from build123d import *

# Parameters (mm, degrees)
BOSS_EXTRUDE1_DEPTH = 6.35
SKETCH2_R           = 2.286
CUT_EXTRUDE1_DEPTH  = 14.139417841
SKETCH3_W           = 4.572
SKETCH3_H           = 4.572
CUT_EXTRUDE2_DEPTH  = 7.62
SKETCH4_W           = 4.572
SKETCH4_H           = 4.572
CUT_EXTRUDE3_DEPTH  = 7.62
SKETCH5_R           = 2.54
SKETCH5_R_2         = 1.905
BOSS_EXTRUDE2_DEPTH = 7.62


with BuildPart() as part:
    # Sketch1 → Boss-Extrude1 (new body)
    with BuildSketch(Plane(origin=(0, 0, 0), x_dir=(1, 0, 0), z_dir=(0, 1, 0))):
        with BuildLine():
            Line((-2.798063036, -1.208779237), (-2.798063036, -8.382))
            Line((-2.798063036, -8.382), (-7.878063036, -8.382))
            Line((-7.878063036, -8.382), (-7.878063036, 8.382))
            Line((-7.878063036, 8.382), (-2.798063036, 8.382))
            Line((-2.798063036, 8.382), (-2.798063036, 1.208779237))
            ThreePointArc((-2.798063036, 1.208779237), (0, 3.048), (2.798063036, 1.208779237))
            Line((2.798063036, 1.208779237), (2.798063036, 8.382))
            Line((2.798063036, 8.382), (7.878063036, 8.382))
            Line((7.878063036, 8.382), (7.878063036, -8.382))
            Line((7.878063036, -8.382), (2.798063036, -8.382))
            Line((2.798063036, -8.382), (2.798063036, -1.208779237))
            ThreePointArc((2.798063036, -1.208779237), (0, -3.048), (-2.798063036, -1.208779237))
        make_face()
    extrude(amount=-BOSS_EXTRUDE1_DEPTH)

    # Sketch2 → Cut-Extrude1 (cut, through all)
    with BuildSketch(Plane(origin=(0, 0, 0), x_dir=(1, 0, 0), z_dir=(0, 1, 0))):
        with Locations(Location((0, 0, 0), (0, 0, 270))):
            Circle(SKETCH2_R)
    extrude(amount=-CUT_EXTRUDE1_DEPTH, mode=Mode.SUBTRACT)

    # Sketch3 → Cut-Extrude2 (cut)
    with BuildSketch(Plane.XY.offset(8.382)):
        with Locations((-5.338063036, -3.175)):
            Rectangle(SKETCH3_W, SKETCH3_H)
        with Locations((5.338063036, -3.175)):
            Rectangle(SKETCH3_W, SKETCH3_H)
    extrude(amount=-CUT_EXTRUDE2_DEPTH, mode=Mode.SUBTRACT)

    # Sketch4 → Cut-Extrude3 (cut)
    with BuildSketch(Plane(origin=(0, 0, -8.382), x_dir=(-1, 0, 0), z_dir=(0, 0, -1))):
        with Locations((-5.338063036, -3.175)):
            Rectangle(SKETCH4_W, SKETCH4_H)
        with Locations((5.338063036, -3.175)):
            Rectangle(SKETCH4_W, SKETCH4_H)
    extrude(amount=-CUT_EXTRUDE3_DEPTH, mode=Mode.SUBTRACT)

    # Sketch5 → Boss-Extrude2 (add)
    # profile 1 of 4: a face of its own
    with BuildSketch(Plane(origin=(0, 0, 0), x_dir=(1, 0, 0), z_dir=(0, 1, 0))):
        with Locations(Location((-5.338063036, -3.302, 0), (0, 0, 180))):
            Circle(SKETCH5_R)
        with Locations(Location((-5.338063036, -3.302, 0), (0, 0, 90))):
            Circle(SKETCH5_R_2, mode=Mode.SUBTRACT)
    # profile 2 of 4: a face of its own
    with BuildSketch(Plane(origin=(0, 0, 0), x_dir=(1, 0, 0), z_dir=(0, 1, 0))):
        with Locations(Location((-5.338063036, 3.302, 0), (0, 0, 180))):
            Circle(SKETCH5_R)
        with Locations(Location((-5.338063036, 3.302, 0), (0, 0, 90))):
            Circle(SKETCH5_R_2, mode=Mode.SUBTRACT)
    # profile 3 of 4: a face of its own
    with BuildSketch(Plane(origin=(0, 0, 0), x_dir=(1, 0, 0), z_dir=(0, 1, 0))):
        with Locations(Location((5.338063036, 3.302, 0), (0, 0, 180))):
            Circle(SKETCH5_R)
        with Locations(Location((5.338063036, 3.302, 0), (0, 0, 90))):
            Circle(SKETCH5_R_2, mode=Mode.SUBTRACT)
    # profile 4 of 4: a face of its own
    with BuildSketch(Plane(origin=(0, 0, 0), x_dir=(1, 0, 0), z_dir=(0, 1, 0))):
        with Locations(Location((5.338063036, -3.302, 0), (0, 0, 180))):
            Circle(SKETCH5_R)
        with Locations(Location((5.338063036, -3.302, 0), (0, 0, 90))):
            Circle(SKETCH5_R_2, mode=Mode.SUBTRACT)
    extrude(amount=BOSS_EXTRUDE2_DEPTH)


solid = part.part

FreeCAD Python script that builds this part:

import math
import FreeCAD as App
import Part
import Sketcher

V = App.Vector
Q = App.Units.Quantity

doc = App.newDocument("Part")
params = doc.addObject("Spreadsheet::Sheet", "Params")
for row, (alias, value) in enumerate([
    ("sketch1_radius", "0.12 in"),
    ("sketch1_width", "0.2 in"),
    ("sketch1_height", "0.66 in"),
    ("pad1_length", "0.25 in"),
    ("sketch2_diameter", "0.18 in"),
    ("sketch3_width", "0.18 in"),
    ("pocket2_length", "0.3 in"),
    ("sketch4_width", "0.18 in"),
    ("pocket3_length", "0.3 in"),
    ("sketch5_diameter", "0.2 in"),
    ("sketch5_diameter2", "0.15 in"),
    ("pad2_length", "0.3 in"),
], start=1):
    params.set(f"A{row}", alias)
    params.set(f"B{row}", "=" + value)
    params.setAlias(f"B{row}", alias)

body = doc.addObject("PartDesign::Body", "Body")

# Sketch on XZ plane
sketch1 = body.newObject("Sketcher::SketchObject", "Sketch")
sketch1.AttachmentSupport = (doc.getObject("XZ_Plane"), [""])
sketch1.MapMode = "FlatFace"
sketch1.addGeometry(Part.LineSegment(V(-2.798063, 8.382, 0), V(-2.798063, 1.208779, 0)), False)
sketch1.addGeometry(Part.ArcOfCircle(Part.Circle(V(0, 0, 0), V(0, 0, 1), 3.048), math.radians(23.364621), math.radians(156.635379)), False)
sketch1.addGeometry(Part.LineSegment(V(2.798063, 1.208779, 0), V(2.798063, 8.382, 0)), False)
sketch1.addGeometry(Part.LineSegment(V(2.798063, 8.382, 0), V(7.878063, 8.382, 0)), False)
sketch1.addGeometry(Part.LineSegment(V(7.878063, 8.382, 0), V(7.878063, -8.382, 0)), False)
sketch1.addGeometry(Part.LineSegment(V(7.878063, -8.382, 0), V(2.798063, -8.382, 0)), False)
sketch1.addGeometry(Part.LineSegment(V(2.798063, -8.382, 0), V(2.798063, -1.208779, 0)), False)
sketch1.addGeometry(Part.ArcOfCircle(Part.Circle(V(0, 0, 0), V(0, 0, 1), 3.048), math.radians(-156.635379), math.radians(-23.364621)), False)
sketch1.addGeometry(Part.LineSegment(V(-2.798063, -1.208779, 0), V(-2.798063, -8.382, 0)), False)
sketch1.addGeometry(Part.LineSegment(V(-2.798063, -8.382, 0), V(-7.878063, -8.382, 0)), False)
sketch1.addGeometry(Part.LineSegment(V(-7.878063, -8.382, 0), V(-7.878063, 8.382, 0)), False)
sketch1.addGeometry(Part.LineSegment(V(-7.878063, 8.382, 0), V(-2.798063, 8.382, 0)), False)
sketch1.addConstraint(Sketcher.Constraint("Coincident", 0, 2, 1, 2))
sketch1.addConstraint(Sketcher.Constraint("Coincident", 1, 1, 2, 1))
sketch1.addConstraint(Sketcher.Constraint("Coincident", 2, 2, 3, 1))
sketch1.addConstraint(Sketcher.Constraint("Coincident", 3, 2, 4, 1))
sketch1.addConstraint(Sketcher.Constraint("Coincident", 4, 2, 5, 1))
sketch1.addConstraint(Sketcher.Constraint("Coincident", 5, 2, 6, 1))
sketch1.addConstraint(Sketcher.Constraint("Coincident", 6, 2, 7, 2))
sketch1.addConstraint(Sketcher.Constraint("Coincident", 7, 1, 8, 1))
sketch1.addConstraint(Sketcher.Constraint("Coincident", 8, 2, 9, 1))
sketch1.addConstraint(Sketcher.Constraint("Coincident", 9, 2, 10, 1))
sketch1.addConstraint(Sketcher.Constraint("Coincident", 10, 2, 11, 1))
sketch1.addConstraint(Sketcher.Constraint("Coincident", 11, 2, 0, 1))
sketch1.addConstraint(Sketcher.Constraint("Vertical", 0))
sketch1.addConstraint(Sketcher.Constraint("Vertical", 2))
sketch1.addConstraint(Sketcher.Constraint("Horizontal", 3))
sketch1.addConstraint(Sketcher.Constraint("Vertical", 4))
sketch1.addConstraint(Sketcher.Constraint("Horizontal", 5))
sketch1.addConstraint(Sketcher.Constraint("Vertical", 6))
sketch1.addConstraint(Sketcher.Constraint("Vertical", 8))
sketch1.addConstraint(Sketcher.Constraint("Horizontal", 9))
sketch1.addConstraint(Sketcher.Constraint("Vertical", 10))
sketch1.addConstraint(Sketcher.Constraint("Horizontal", 11))
sketch1.addConstraint(Sketcher.Constraint("Coincident", 1, 3, -1, 1))
sketch1.addConstraint(Sketcher.Constraint("Coincident", 7, 3, -1, 1))
sketch1.addConstraint(Sketcher.Constraint("Equal", 1, 7))
sketch1.addConstraint(Sketcher.Constraint("Symmetric", 2, 2, 8, 2, -1, 1))
sketch1.addConstraint(Sketcher.Constraint("Symmetric", 4, 2, 10, 2, -1, 1))
sketch1.addConstraint(Sketcher.Constraint("Symmetric", 5, 2, 8, 2, -2))
sketch1.addConstraint(Sketcher.Constraint("Horizontal", 0, 2, 1, 1))
sketch1.addConstraint(Sketcher.Constraint("Radius", 1, Q("0.12 in")))
sketch1.addConstraint(Sketcher.Constraint("DistanceX", 3, 1, 3, 2, Q("0.2 in")))
sketch1.addConstraint(Sketcher.Constraint("DistanceY", 4, 2, 4, 1, Q("0.66 in")))
sketch1.addConstraint(Sketcher.Constraint("DistanceY", 0, 2, 0, 1, Q("7.173221 mm")))
sketch1.setExpression("Constraints[29]", "Params.sketch1_radius")
sketch1.setExpression("Constraints[30]", "Params.sketch1_width")
sketch1.setExpression("Constraints[31]", "Params.sketch1_height")
pad1 = body.newObject("PartDesign::Pad", "Pad")
pad1.Profile = sketch1
pad1.setExpression("Length", "Params.pad1_length")

# Sketch on XZ plane
sketch2 = body.newObject("Sketcher::SketchObject", "Sketch001")
sketch2.AttachmentSupport = (doc.getObject("XZ_Plane"), [""])
sketch2.MapMode = "FlatFace"
sketch2.addGeometry(Part.Circle(V(0, 0, 0), V(0, 0, 1), 2.286), False)
sketch2.addConstraint(Sketcher.Constraint("Coincident", 0, 3, -1, 1))
sketch2.addConstraint(Sketcher.Constraint("Diameter", 0, Q("0.18 in")))
sketch2.setExpression("Constraints[1]", "Params.sketch2_diameter")
pocket1 = body.newObject("PartDesign::Pocket", "Pocket")
pocket1.Profile = sketch2
pocket1.Type = "ThroughAll"
pocket1.Reversed = True

# Sketch on XY plane
sketch3 = body.newObject("Sketcher::SketchObject", "Sketch002")
sketch3.AttachmentSupport = (doc.getObject("XY_Plane"), [""])
sketch3.MapMode = "FlatFace"
sketch3.AttachmentOffset = App.Placement(V(0, 0, 0.33 * 25.4), App.Rotation())
sketch3.addGeometry(Part.LineSegment(V(-7.624063, -0.889, 0), V(-7.624063, -5.461, 0)), False)
sketch3.addGeometry(Part.LineSegment(V(-7.624063, -5.461, 0), V(-3.052063, -5.461, 0)), False)
sketch3.addGeometry(Part.LineSegment(V(-3.052063, -5.461, 0), V(-3.052063, -0.889, 0)), False)
sketch3.addGeometry(Part.LineSegment(V(-3.052063, -0.889, 0), V(-7.624063, -0.889, 0)), False)
sketch3.addGeometry(Part.LineSegment(V(3.052063, -0.889, 0), V(3.052063, -5.461, 0)), False)
sketch3.addGeometry(Part.LineSegment(V(3.052063, -5.461, 0), V(7.624063, -5.461, 0)), False)
sketch3.addGeometry(Part.LineSegment(V(7.624063, -5.461, 0), V(7.624063, -0.889, 0)), False)
sketch3.addGeometry(Part.LineSegment(V(7.624063, -0.889, 0), V(3.052063, -0.889, 0)), False)
sketch3.addConstraint(Sketcher.Constraint("Coincident", 0, 2, 1, 1))
sketch3.addConstraint(Sketcher.Constraint("Coincident", 1, 2, 2, 1))
sketch3.addConstraint(Sketcher.Constraint("Coincident", 2, 2, 3, 1))
sketch3.addConstraint(Sketcher.Constraint("Coincident", 3, 2, 0, 1))
sketch3.addConstraint(Sketcher.Constraint("Coincident", 4, 2, 5, 1))
sketch3.addConstraint(Sketcher.Constraint("Coincident", 5, 2, 6, 1))
sketch3.addConstraint(Sketcher.Constraint("Coincident", 6, 2, 7, 1))
sketch3.addConstraint(Sketcher.Constraint("Coincident", 7, 2, 4, 1))
sketch3.addConstraint(Sketcher.Constraint("Vertical", 0))
sketch3.addConstraint(Sketcher.Constraint("Horizontal", 1))
sketch3.addConstraint(Sketcher.Constraint("Vertical", 2))
sketch3.addConstraint(Sketcher.Constraint("Horizontal", 3))
sketch3.addConstraint(Sketcher.Constraint("Vertical", 4))
sketch3.addConstraint(Sketcher.Constraint("Horizontal", 5))
sketch3.addConstraint(Sketcher.Constraint("Vertical", 6))
sketch3.addConstraint(Sketcher.Constraint("Horizontal", 7))
sketch3.addConstraint(Sketcher.Constraint("Symmetric", 1, 2, 4, 2, -2))
sketch3.addConstraint(Sketcher.Constraint("Symmetric", 3, 2, 6, 2, -2))
sketch3.addConstraint(Sketcher.Constraint("Equal", 7, 0))
sketch3.addConstraint(Sketcher.Constraint("DistanceX", 1, 1, 1, 2, Q("0.18 in")))
sketch3.addConstraint(Sketcher.Constraint("DistanceY", 0, 2, -1, 1, Q("0.215 in")))
sketch3.addConstraint(Sketcher.Constraint("DistanceX", 0, 2, -1, 1, Q("7.624063 mm")))
sketch3.setExpression("Constraints[19]", "Params.sketch3_width")
pocket2 = body.newObject("PartDesign::Pocket", "Pocket001")
pocket2.Profile = sketch3
pocket2.setExpression("Length", "Params.pocket2_length")

# Sketch on XY plane
sketch4 = body.newObject("Sketcher::SketchObject", "Sketch003")
sketch4.AttachmentSupport = (doc.getObject("XY_Plane"), [""])
sketch4.MapMode = "FlatFace"
sketch4.AttachmentOffset = App.Placement(V(0, 0, -0.33 * 25.4), App.Rotation())
sketch4.addGeometry(Part.LineSegment(V(7.624063, -0.889, 0), V(7.624063, -5.461, 0)), False)
sketch4.addGeometry(Part.LineSegment(V(7.624063, -5.461, 0), V(3.052063, -5.461, 0)), False)
sketch4.addGeometry(Part.LineSegment(V(3.052063, -5.461, 0), V(3.052063, -0.889, 0)), False)
sketch4.addGeometry(Part.LineSegment(V(3.052063, -0.889, 0), V(7.624063, -0.889, 0)), False)
sketch4.addGeometry(Part.LineSegment(V(-3.052063, -0.889, 0), V(-3.052063, -5.461, 0)), False)
sketch4.addGeometry(Part.LineSegment(V(-3.052063, -5.461, 0), V(-7.624063, -5.461, 0)), False)
sketch4.addGeometry(Part.LineSegment(V(-7.624063, -5.461, 0), V(-7.624063, -0.889, 0)), False)
sketch4.addGeometry(Part.LineSegment(V(-7.624063, -0.889, 0), V(-3.052063, -0.889, 0)), False)
sketch4.addConstraint(Sketcher.Constraint("Coincident", 0, 2, 1, 1))
sketch4.addConstraint(Sketcher.Constraint("Coincident", 1, 2, 2, 1))
sketch4.addConstraint(Sketcher.Constraint("Coincident", 2, 2, 3, 1))
sketch4.addConstraint(Sketcher.Constraint("Coincident", 3, 2, 0, 1))
sketch4.addConstraint(Sketcher.Constraint("Coincident", 4, 2, 5, 1))
sketch4.addConstraint(Sketcher.Constraint("Coincident", 5, 2, 6, 1))
sketch4.addConstraint(Sketcher.Constraint("Coincident", 6, 2, 7, 1))
sketch4.addConstraint(Sketcher.Constraint("Coincident", 7, 2, 4, 1))
sketch4.addConstraint(Sketcher.Constraint("Vertical", 0))
sketch4.addConstraint(Sketcher.Constraint("Horizontal", 1))
sketch4.addConstraint(Sketcher.Constraint("Vertical", 2))
sketch4.addConstraint(Sketcher.Constraint("Horizontal", 3))
sketch4.addConstraint(Sketcher.Constraint("Vertical", 4))
sketch4.addConstraint(Sketcher.Constraint("Horizontal", 5))
sketch4.addConstraint(Sketcher.Constraint("Vertical", 6))
sketch4.addConstraint(Sketcher.Constraint("Horizontal", 7))
sketch4.addConstraint(Sketcher.Constraint("Symmetric", 1, 2, 4, 2, -2))
sketch4.addConstraint(Sketcher.Constraint("Symmetric", 3, 2, 6, 2, -2))
sketch4.addConstraint(Sketcher.Constraint("Equal", 7, 0))
sketch4.addConstraint(Sketcher.Constraint("DistanceX", 1, 2, 1, 1, Q("0.18 in")))
sketch4.addConstraint(Sketcher.Constraint("DistanceY", 0, 2, -1, 1, Q("0.215 in")))
sketch4.addConstraint(Sketcher.Constraint("DistanceX", -1, 1, 0, 2, Q("7.624063 mm")))
sketch4.setExpression("Constraints[19]", "Params.sketch4_width")
pocket3 = body.newObject("PartDesign::Pocket", "Pocket002")
pocket3.Profile = sketch4
pocket3.setExpression("Length", "Params.pocket3_length")
pocket3.Reversed = True

# Sketch on XZ plane
sketch5 = body.newObject("Sketcher::SketchObject", "Sketch004")
sketch5.AttachmentSupport = (doc.getObject("XZ_Plane"), [""])
sketch5.MapMode = "FlatFace"
sketch5.addGeometry(Part.Circle(V(-5.338063, 3.302, 0), V(0, 0, 1), 2.54), False)
sketch5.addGeometry(Part.Circle(V(-5.338063, 3.302, 0), V(0, 0, 1), 1.905), False)
sketch5.addGeometry(Part.Circle(V(-5.338063, -3.302, 0), V(0, 0, 1), 2.54), False)
sketch5.addGeometry(Part.Circle(V(-5.338063, -3.302, 0), V(0, 0, 1), 1.905), False)
sketch5.addGeometry(Part.Circle(V(5.338063, -3.302, 0), V(0, 0, 1), 2.54), False)
sketch5.addGeometry(Part.Circle(V(5.338063, -3.302, 0), V(0, 0, 1), 1.905), False)
sketch5.addGeometry(Part.Circle(V(5.338063, 3.302, 0), V(0, 0, 1), 2.54), False)
sketch5.addGeometry(Part.Circle(V(5.338063, 3.302, 0), V(0, 0, 1), 1.905), False)
sketch5.addConstraint(Sketcher.Constraint("Coincident", 1, 3, 0, 3))
sketch5.addConstraint(Sketcher.Constraint("Coincident", 3, 3, 2, 3))
sketch5.addConstraint(Sketcher.Constraint("Coincident", 5, 3, 4, 3))
sketch5.addConstraint(Sketcher.Constraint("Coincident", 7, 3, 6, 3))
sketch5.addConstraint(Sketcher.Constraint("Equal", 0, 2))
sketch5.addConstraint(Sketcher.Constraint("Equal", 1, 3))
sketch5.addConstraint(Sketcher.Constraint("Equal", 2, 4))
sketch5.addConstraint(Sketcher.Constraint("Equal", 3, 5))
sketch5.addConstraint(Sketcher.Constraint("Equal", 4, 6))
sketch5.addConstraint(Sketcher.Constraint("Equal", 5, 7))
sketch5.addConstraint(Sketcher.Constraint("Symmetric", 0, 3, 4, 3, -1, 1))
sketch5.addConstraint(Sketcher.Constraint("Symmetric", 2, 3, 6, 3, -1, 1))
sketch5.addConstraint(Sketcher.Constraint("Symmetric", 2, 3, 4, 3, -2))
sketch5.addConstraint(Sketcher.Constraint("Diameter", 0, Q("0.2 in")))
sketch5.addConstraint(Sketcher.Constraint("Diameter", 1, Q("0.15 in")))
sketch5.addConstraint(Sketcher.Constraint("DistanceY", -1, 1, 0, 3, Q("0.13 in")))
sketch5.addConstraint(Sketcher.Constraint("DistanceX", 0, 3, -1, 1, Q("5.338063 mm")))
sketch5.setExpression("Constraints[13]", "Params.sketch5_diameter")
sketch5.setExpression("Constraints[14]", "Params.sketch5_diameter2")
pad2 = body.newObject("PartDesign::Pad", "Pad001")
pad2.Profile = sketch5
pad2.setExpression("Length", "Params.pad2_length")
pad2.Reversed = True

doc.recompute()
